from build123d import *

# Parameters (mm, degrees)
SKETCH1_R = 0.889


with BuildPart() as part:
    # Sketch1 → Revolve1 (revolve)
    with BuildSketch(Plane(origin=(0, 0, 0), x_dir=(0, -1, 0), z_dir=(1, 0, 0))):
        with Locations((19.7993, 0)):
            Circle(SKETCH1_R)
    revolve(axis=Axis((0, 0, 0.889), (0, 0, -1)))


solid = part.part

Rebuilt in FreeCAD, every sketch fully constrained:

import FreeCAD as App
import Part
import Sketcher

V = App.Vector
Q = App.Units.Quantity

doc = App.newDocument("Part")
params = doc.addObject("Spreadsheet::Sheet", "Params")
for row, (alias, value) in enumerate([
    ("sketch1_diameter", "0.07 in"),
    ("revolution_angle", "360 deg"),
], start=1):
    params.set(f"A{row}", alias)
    params.set(f"B{row}", "=" + value)
    params.setAlias(f"B{row}", alias)

body = doc.addObject("PartDesign::Body", "Body")

# Sketch on YZ plane
sketch1 = body.newObject("Sketcher::SketchObject", "Sketch")
sketch1.AttachmentSupport = (doc.getObject("YZ_Plane"), [""])
sketch1.MapMode = "FlatFace"
sketch1.addGeometry(Part.Circle(V(-19.8, 0, 0), V(0, 0, 1), 0.9), False)
sketch1.addConstraint(Sketcher.Constraint("PointOnObject", 0, 3, -1))
sketch1.addConstraint(Sketcher.Constraint("Diameter", 0, Q("0.07 in")))
sketch1.addConstraint(Sketcher.Constraint("DistanceX", 0, 3, -1, 1, Q("0.7795 in")))
sketch1.setExpression("Constraints[1]", "Params.sketch1_diameter")
revolution = body.newObject("PartDesign::Revolution", "Revolution")
revolution.Profile = sketch1
revolution.ReferenceAxis = (sketch1, ["V_Axis"])
revolution.setExpression("Angle", "Params.revolution_angle")

doc.recompute()
